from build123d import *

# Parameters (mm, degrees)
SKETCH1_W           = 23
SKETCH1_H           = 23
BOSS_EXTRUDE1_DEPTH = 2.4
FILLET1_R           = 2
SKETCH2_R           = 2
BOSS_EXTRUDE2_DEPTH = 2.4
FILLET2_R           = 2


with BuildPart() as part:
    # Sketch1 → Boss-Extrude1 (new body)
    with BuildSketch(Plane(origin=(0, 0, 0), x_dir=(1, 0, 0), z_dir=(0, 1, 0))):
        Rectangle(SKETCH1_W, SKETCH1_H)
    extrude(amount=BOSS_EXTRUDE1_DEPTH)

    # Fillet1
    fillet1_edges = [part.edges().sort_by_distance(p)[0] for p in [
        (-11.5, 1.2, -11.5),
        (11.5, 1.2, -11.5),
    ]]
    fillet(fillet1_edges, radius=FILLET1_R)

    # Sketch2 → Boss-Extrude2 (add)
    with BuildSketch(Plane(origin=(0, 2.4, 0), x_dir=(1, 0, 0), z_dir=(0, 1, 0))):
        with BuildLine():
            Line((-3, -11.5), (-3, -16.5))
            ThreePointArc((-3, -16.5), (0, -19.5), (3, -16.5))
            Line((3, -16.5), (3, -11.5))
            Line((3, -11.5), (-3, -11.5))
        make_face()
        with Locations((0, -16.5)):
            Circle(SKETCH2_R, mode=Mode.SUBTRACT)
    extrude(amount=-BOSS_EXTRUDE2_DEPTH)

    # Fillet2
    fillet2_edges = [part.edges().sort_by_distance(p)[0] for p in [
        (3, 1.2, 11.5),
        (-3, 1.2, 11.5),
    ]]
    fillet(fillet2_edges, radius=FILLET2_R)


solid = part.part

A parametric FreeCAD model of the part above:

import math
import FreeCAD as App
import Part
import Sketcher

V = App.Vector
Q = App.Units.Quantity


def edges_at(feature, points):
    """Names of the edges that pass closest to the given points."""
    edges = feature.Shape.Edges
    near = lambda p: min(range(len(edges)), key=lambda i: edges[i].distToShape(Part.Vertex(*p))[0])
    return sorted({f"Edge{near(p) + 1}" for p in points})

doc = App.newDocument("Part")
body = doc.addObject("PartDesign::Body", "Body")

# Sketch on XZ plane
sketch1 = doc.addObject("Sketcher::SketchObject", "Sketch")
body.addObject(sketch1)
sketch1.AttachmentSupport = (doc.XZ_Plane, [""])
sketch1.MapMode = "FlatFace"
sketch1.addGeometry([
    Part.LineSegment(V(-12, -12, 0), V(-12, 12, 0)),
    Part.LineSegment(V(-12, 12, 0), V(12, 12, 0)),
    Part.LineSegment(V(12, 12, 0), V(12, -12, 0)),
    Part.LineSegment(V(12, -12, 0), V(-12, -12, 0)),
], False)
sketch1.addConstraint([
    Sketcher.Constraint("Coincident", 0, 2, 1, 1),
    Sketcher.Constraint("Coincident", 1, 2, 2, 1),
    Sketcher.Constraint("Coincident", 2, 2, 3, 1),
    Sketcher.Constraint("Coincident", 3, 2, 0, 1),
    Sketcher.Constraint("Vertical", 0),
    Sketcher.Constraint("Horizontal", 1),
    Sketcher.Constraint("Vertical", 2),
    Sketcher.Constraint("Horizontal", 3),
    Sketcher.Constraint("Symmetric", 0, 2, 2, 2, -1, 1),
    Sketcher.Constraint("Equal", 3, 0),
    Sketcher.Constraint("DistanceX", 1, 1, 1, 2, Q("23 mm")),
])
pad1 = doc.addObject("PartDesign::Pad", "Pad")
body.addObject(pad1)
pad1.Profile = sketch1
pad1.Length = 2.4
pad1.Reversed = True
doc.recompute()

fillet = doc.addObject("PartDesign::Fillet", "Fillet")
body.addObject(fillet)
fillet.Base = (pad1, edges_at(pad1, [(-11.5, 1.2, -11.5), (11.5, 1.2, -11.5)]))
fillet.Radius = 2

# Sketch on XZ plane
sketch2 = doc.addObject("Sketcher::SketchObject", "Sketch001")
body.addObject(sketch2)
sketch2.AttachmentSupport = (doc.XZ_Plane, [""])
sketch2.MapMode = "FlatFace"
sketch2.AttachmentOffset = App.Placement(V(0, 0, -2.4), App.Rotation())
sketch2.addGeometry([
    Part.LineSegment(V(-3, 11.5, 0), V(-3, 16.5, 0)),  # 0
    Part.ArcOfCircle(Part.Circle(V(0, 16.5, 0), V(0, 0, 1), 3), math.radians(0), math.radians(180)),  # 1
    Part.LineSegment(V(3, 16.5, 0), V(3, 11.5, 0)),  # 2
    Part.LineSegment(V(3, 11.5, 0), V(-3, 11.5, 0)),  # 3
    Part.Circle(V(0, 16.5, 0), V(0, 0, 1), 2),  # 4
], False)
sketch2.addConstraint([
    Sketcher.Constraint("Tangent", 0, 2, 1, 2),
    Sketcher.Constraint("Tangent", 1, 1, 2, 1),
    Sketcher.Constraint("Coincident", 2, 2, 3, 1),
    Sketcher.Constraint("Coincident", 3, 2, 0, 1),
    Sketcher.Constraint("Vertical", 0),
    Sketcher.Constraint("Vertical", 2),
    Sketcher.Constraint("Horizontal", 3),
    Sketcher.Constraint("Coincident", 4, 3, 1, 3),
    Sketcher.Constraint("PointOnObject", 1, 3, -2),
    Sketcher.Constraint("Diameter", 4, Q("4 mm")),
    Sketcher.Constraint("Radius", 1, Q("3 mm")),
    Sketcher.Constraint("DistanceY", 0, 1, 0, 2, Q("5 mm")),
    Sketcher.Constraint("DistanceY", -1, 1, 1, 3, Q("16.5 mm")),
])
pad2 = doc.addObject("PartDesign::Pad", "Pad001")
body.addObject(pad2)
pad2.Profile = sketch2
pad2.Length = 2.4
doc.recompute()

fillet2 = doc.addObject("PartDesign::Fillet", "Fillet001")
body.addObject(fillet2)
fillet2.Base = (pad2, edges_at(pad2, [(3, 1.2, 11.5), (-3, 1.2, 11.5)]))
fillet2.Radius = 2

doc.recompute()
